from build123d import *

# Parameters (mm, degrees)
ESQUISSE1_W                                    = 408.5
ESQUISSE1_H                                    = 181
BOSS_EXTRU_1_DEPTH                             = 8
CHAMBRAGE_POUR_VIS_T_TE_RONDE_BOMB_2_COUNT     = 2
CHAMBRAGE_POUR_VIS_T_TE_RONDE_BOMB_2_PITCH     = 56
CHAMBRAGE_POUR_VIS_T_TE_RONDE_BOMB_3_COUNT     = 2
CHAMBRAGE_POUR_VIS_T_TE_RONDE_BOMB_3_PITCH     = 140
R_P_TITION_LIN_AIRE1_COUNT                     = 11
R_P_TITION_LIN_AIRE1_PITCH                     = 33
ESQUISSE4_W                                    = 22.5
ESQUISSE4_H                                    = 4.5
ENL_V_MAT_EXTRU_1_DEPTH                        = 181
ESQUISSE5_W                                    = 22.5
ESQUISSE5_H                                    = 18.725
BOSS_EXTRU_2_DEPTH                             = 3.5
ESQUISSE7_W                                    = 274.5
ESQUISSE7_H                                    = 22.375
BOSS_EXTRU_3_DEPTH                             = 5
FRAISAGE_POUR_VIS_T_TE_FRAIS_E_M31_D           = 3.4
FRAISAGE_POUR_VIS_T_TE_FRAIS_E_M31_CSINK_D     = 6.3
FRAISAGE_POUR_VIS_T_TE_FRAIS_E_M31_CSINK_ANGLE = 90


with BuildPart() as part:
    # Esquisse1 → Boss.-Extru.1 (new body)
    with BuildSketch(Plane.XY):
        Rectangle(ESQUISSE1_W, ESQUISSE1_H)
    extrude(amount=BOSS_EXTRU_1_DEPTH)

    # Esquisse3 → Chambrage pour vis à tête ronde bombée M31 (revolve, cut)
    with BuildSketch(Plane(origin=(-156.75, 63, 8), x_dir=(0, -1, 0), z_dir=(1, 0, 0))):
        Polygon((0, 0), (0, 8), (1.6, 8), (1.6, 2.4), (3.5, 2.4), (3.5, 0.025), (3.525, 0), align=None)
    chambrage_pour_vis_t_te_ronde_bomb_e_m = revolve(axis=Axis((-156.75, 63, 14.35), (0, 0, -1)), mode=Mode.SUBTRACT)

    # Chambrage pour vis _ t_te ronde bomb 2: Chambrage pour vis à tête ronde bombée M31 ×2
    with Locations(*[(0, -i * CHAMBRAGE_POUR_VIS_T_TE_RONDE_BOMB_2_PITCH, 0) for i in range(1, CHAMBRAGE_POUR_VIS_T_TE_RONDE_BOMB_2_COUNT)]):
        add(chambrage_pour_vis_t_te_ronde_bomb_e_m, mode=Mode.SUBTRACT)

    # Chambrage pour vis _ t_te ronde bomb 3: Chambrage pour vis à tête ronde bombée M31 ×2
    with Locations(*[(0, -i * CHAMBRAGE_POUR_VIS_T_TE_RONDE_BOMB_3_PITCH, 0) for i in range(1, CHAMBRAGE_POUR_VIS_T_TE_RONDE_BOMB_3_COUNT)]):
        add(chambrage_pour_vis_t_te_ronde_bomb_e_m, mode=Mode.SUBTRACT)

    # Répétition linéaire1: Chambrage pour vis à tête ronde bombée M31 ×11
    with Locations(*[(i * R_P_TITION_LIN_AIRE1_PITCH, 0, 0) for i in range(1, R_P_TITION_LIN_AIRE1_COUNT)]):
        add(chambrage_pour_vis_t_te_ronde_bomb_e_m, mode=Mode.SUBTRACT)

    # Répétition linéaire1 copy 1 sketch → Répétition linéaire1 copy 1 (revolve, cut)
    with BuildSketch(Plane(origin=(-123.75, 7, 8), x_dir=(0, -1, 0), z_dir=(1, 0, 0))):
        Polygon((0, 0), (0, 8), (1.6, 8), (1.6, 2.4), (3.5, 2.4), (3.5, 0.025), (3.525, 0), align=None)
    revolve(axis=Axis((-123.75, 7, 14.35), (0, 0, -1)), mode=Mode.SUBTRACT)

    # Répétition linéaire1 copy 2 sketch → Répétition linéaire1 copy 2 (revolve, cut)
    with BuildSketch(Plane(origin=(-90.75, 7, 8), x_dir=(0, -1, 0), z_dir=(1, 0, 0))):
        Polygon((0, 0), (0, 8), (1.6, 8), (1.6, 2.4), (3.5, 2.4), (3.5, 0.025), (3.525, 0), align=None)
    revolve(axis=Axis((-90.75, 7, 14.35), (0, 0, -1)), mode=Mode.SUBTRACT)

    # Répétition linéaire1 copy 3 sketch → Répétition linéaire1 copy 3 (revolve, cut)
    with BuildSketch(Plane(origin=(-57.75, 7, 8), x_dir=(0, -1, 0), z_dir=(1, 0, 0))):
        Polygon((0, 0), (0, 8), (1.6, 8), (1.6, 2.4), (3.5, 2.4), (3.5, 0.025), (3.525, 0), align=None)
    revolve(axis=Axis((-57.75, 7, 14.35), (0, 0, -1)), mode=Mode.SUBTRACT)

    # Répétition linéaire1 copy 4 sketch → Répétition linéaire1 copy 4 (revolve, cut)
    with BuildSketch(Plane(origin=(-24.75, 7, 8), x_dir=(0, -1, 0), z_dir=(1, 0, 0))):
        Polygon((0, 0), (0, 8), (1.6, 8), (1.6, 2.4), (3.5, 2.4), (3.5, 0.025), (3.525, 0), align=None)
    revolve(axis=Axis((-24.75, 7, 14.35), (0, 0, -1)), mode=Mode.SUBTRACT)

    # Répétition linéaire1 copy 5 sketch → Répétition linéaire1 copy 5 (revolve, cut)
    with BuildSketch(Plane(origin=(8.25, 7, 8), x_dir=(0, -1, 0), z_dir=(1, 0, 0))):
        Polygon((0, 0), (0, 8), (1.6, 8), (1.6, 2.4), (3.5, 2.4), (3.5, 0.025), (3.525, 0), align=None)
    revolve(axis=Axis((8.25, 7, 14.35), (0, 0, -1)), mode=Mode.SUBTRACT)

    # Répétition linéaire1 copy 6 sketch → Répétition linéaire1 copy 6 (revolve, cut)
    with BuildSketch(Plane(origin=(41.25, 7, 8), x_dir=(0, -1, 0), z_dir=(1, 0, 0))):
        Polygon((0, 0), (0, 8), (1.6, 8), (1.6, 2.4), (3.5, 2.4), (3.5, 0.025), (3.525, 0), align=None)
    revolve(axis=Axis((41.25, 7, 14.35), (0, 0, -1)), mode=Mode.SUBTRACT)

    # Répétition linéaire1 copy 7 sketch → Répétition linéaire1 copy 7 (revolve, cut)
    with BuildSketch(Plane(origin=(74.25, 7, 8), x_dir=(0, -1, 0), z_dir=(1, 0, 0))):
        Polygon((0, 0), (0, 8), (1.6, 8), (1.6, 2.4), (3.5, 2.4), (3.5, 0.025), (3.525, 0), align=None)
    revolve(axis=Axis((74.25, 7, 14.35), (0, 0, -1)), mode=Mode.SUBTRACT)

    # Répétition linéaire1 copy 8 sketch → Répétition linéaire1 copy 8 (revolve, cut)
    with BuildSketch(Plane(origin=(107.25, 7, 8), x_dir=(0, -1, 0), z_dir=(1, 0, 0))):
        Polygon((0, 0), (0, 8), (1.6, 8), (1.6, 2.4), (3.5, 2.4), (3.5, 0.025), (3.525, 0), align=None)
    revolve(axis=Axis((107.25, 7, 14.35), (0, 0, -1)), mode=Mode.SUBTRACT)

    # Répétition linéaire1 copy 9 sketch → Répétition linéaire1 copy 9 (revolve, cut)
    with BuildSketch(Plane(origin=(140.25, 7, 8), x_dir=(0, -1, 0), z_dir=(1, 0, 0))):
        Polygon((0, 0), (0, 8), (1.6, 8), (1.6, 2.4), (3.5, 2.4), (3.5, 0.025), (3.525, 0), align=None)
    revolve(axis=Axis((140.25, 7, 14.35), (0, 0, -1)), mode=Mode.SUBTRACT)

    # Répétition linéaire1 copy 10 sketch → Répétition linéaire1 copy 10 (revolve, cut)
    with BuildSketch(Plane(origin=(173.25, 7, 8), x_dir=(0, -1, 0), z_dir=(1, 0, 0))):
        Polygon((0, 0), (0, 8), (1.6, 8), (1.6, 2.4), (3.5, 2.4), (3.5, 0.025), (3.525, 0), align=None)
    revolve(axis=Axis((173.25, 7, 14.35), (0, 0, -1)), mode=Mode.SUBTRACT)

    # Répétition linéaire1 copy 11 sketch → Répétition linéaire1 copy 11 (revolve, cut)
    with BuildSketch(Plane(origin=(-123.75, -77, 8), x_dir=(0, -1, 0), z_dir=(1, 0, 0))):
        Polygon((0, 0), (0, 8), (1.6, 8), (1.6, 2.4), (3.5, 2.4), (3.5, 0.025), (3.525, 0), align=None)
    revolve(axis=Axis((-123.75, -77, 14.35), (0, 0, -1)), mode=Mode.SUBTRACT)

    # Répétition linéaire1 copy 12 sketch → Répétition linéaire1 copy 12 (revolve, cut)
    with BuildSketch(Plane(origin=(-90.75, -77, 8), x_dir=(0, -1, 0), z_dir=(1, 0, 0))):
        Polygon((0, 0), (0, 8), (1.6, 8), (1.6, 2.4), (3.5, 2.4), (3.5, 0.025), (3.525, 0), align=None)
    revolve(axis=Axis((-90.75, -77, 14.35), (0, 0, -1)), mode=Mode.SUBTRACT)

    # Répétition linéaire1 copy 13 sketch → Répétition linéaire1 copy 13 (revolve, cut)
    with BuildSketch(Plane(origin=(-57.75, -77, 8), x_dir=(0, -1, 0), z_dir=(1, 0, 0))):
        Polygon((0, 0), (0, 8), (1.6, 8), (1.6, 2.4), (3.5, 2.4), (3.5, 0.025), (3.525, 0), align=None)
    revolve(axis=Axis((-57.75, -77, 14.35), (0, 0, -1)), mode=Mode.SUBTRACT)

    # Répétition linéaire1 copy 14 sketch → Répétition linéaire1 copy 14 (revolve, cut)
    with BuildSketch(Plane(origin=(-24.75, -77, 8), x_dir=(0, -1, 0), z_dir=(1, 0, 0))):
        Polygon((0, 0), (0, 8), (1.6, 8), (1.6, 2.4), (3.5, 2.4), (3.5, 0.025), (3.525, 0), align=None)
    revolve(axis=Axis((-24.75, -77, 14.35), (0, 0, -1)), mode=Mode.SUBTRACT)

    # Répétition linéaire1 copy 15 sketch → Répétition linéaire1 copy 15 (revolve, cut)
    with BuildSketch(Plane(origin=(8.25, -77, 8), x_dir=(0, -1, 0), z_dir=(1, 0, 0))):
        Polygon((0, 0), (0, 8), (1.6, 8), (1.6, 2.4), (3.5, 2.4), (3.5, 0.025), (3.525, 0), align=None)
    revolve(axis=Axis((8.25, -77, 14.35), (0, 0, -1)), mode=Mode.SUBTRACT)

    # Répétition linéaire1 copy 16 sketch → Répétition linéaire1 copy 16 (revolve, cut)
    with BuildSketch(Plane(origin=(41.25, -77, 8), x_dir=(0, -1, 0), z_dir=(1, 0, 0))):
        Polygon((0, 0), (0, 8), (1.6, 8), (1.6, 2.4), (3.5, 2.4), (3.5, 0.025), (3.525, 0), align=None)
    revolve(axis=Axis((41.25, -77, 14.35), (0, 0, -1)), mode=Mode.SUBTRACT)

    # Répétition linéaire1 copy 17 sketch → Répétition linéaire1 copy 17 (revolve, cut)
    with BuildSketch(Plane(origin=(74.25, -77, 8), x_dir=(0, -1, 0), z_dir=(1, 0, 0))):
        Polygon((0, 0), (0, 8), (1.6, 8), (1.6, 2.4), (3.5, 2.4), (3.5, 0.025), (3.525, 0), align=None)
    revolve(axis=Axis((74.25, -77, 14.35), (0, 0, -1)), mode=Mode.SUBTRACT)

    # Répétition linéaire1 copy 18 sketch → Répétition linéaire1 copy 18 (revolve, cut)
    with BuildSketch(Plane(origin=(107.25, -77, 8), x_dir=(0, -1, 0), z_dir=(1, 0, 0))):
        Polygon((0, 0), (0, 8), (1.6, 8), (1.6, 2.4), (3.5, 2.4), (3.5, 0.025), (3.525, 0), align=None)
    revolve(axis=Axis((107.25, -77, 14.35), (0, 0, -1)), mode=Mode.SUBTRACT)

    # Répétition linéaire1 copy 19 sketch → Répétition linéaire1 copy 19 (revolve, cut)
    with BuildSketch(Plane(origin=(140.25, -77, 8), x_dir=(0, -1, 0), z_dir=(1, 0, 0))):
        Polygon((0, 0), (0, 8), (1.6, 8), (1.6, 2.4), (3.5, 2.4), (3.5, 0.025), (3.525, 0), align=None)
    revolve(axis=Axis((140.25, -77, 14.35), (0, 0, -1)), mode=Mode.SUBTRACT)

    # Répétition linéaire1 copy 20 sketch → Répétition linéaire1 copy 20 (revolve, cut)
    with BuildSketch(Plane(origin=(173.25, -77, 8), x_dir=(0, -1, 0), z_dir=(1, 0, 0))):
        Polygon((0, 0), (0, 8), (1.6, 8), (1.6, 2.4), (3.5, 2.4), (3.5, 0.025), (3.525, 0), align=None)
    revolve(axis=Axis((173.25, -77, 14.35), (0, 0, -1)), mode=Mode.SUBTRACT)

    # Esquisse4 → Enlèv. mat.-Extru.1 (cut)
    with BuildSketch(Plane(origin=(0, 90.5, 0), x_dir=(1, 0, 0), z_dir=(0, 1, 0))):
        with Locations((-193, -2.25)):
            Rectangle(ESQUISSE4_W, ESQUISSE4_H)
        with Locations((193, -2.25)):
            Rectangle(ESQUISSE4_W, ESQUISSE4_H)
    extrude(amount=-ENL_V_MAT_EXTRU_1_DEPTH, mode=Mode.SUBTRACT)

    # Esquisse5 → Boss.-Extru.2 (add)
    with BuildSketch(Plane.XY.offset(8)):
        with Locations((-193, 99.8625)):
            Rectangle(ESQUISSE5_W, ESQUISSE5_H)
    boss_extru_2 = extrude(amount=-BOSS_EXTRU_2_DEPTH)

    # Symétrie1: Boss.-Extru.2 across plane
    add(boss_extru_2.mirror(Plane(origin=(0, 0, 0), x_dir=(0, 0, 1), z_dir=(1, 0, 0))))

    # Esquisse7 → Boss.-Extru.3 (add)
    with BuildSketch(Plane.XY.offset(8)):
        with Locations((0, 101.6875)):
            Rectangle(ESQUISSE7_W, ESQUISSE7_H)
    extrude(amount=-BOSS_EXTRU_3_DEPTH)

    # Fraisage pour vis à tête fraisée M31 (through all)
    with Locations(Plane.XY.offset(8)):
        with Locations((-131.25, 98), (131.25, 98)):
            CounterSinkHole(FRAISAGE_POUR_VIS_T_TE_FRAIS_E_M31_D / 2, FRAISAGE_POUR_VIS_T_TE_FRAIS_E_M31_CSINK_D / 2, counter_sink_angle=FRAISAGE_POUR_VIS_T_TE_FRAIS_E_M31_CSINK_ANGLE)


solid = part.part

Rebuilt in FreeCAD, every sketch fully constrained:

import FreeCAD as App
import Part
import Sketcher
from FreeCAD import Vector
Q = App.Units.Quantity


def add_polygon(sketch, points):
    """Adds a closed chain of lines whose ends are joined by coincident constraints."""
    first, n = sketch.GeometryCount, len(points)
    for a, b in zip(points, points[1:] + points[:1]):
        sketch.addGeometry(Part.LineSegment(App.Vector(*a, 0), App.Vector(*b, 0)), False)
    for i in range(n):
        sketch.addConstraint(Sketcher.Constraint("Coincident", first + i, 2, first + (i + 1) % n, 1))

doc = App.newDocument("Part")
body = doc.addObject("PartDesign::Body", "Body")

sketch1 = body.newObject("Sketcher::SketchObject", "Sketch")
sketch1.AttachmentSupport = (doc.getObject("XY_Plane"), [""])
sketch1.MapMode = "FlatFace"
add_polygon(sketch1, [(-204, 90), (-204, -90), (204, -90), (204, 90)])
sketch1.addConstraint([
    Sketcher.Constraint("Vertical", 0),
    Sketcher.Constraint("Horizontal", 1),
    Sketcher.Constraint("Vertical", 2),
    Sketcher.Constraint("Horizontal", 3),
    Sketcher.Constraint("Symmetric", 0, 2, 2, 2, -1, 1),
    Sketcher.Constraint("DistanceY", 0, 2, 0, 1, 181.0),
    Sketcher.Constraint("DistanceX", 1, 1, 1, 2, 408.5),
])
pad1 = body.newObject("PartDesign::Pad", "Pad")
pad1.Profile = sketch1
pad1.Length = 8

sketch2 = body.newObject("Sketcher::SketchObject", "Sketch001")
sketch2.AttachmentSupport = (doc.getObject("YZ_Plane"), [""])
sketch2.MapMode = "FlatFace"
sketch2.AttachmentOffset = App.Placement(Vector(0, 0, -156.75), App.Rotation())
add_polygon(sketch2, [(63, 0), (63, 8), (59.475, 8), (59.5, 7.975), (59.5, 5.6), (61.4, 5.6), (61.4, 0)])
sketch2.addGeometry(Part.LineSegment(Vector(63, 8, 0), Vector(63, 0, 0)), True)
sketch2.addConstraint([
    Sketcher.Constraint("Vertical", 0),
    Sketcher.Constraint("Horizontal", 1),
    Sketcher.Constraint("Vertical", 3),
    Sketcher.Constraint("Horizontal", 4),
    Sketcher.Constraint("Vertical", 5),
    Sketcher.Constraint("Horizontal", 6),
    Sketcher.Constraint("Vertical", 7),
    Sketcher.Constraint("Coincident", 7, 1, 0, 2),
    Sketcher.Constraint("PointOnObject", 5, 2, -1),
    Sketcher.Constraint("PointOnObject", 7, 2, -1),
    Sketcher.Constraint("DistanceY", 0, 1, 0, 2, 8.0),
    Sketcher.Constraint("Angle", 2, Q("-45 deg")),
    Sketcher.Constraint("DistanceX", 4, 1, 4, 2, 1.9),
    Sketcher.Constraint("DistanceX", 6, 1, 6, 2, 1.6),
    Sketcher.Constraint("DistanceY", 5, 2, 5, 1, 5.6),
    Sketcher.Constraint("DistanceX", -1, 1, 0, 2, 63.0),
    Sketcher.Constraint("DistanceX", 1, 2, 1, 1, 3.525),
])
groove = body.newObject("PartDesign::Groove", "Groove")
groove.Profile = sketch2
groove.ReferenceAxis = (sketch2, ["Axis0"])
groove.Angle = 360
doc.recompute()

linearpattern = body.newObject("PartDesign::LinearPattern", "LinearPattern")
linearpattern.Originals = [groove]
linearpattern.Direction = (doc.getObject("Y_Axis"), [""])
linearpattern.Mode = "offset"
linearpattern.Offset = 56
linearpattern.Occurrences = 2
linearpattern.Reversed = True
body.Tip = linearpattern
doc.recompute()

linearpattern2 = body.newObject("PartDesign::LinearPattern", "LinearPattern001")
linearpattern2.Originals = [groove]
linearpattern2.Direction = (doc.getObject("Y_Axis"), [""])
linearpattern2.Mode = "offset"
linearpattern2.Offset = 140
linearpattern2.Occurrences = 2
linearpattern2.Reversed = True
body.Tip = linearpattern2
doc.recompute()

linearpattern3 = body.newObject("PartDesign::LinearPattern", "LinearPattern002")
linearpattern3.Originals = [groove]
linearpattern3.Direction = (doc.getObject("X_Axis"), [""])
linearpattern3.Mode = "offset"
linearpattern3.Offset = 33
linearpattern3.Occurrences = 11
body.Tip = linearpattern3

sketch3 = body.newObject("Sketcher::SketchObject", "Sketch002")
sketch3.AttachmentSupport = (doc.getObject("YZ_Plane"), [""])
sketch3.MapMode = "FlatFace"
sketch3.AttachmentOffset = App.Placement(Vector(0, 0, -123.75), App.Rotation())
add_polygon(sketch3, [(7, 0), (7, 8), (3.475, 8), (3.5, 7.975), (3.5, 5.6), (5.4, 5.6), (5.4, 0)])
sketch3.addGeometry(Part.LineSegment(Vector(7, 8, 0), Vector(7, 0, 0)), True)
sketch3.addConstraint([
    Sketcher.Constraint("Vertical", 0),
    Sketcher.Constraint("Horizontal", 1),
    Sketcher.Constraint("Vertical", 3),
    Sketcher.Constraint("Horizontal", 4),
    Sketcher.Constraint("Vertical", 5),
    Sketcher.Constraint("Horizontal", 6),
    Sketcher.Constraint("Vertical", 7),
    Sketcher.Constraint("Coincident", 7, 1, 0, 2),
    Sketcher.Constraint("PointOnObject", 5, 2, -1),
    Sketcher.Constraint("PointOnObject", 7, 2, -1),
    Sketcher.Constraint("DistanceY", 0, 1, 0, 2, 8.0),
    Sketcher.Constraint("Angle", 2, Q("-45 deg")),
    Sketcher.Constraint("DistanceX", 4, 1, 4, 2, 1.9),
    Sketcher.Constraint("DistanceX", 6, 1, 6, 2, 1.6),
    Sketcher.Constraint("DistanceY", 5, 2, 5, 1, 5.6),
    Sketcher.Constraint("DistanceX", -1, 1, 0, 2, 7.0),
    Sketcher.Constraint("DistanceX", 1, 2, 1, 1, 3.525),
])
groove2 = body.newObject("PartDesign::Groove", "Groove001")
groove2.Profile = sketch3
groove2.ReferenceAxis = (sketch3, ["Axis0"])
groove2.Angle = 360

sketch4 = body.newObject("Sketcher::SketchObject", "Sketch003")
sketch4.AttachmentSupport = (doc.getObject("YZ_Plane"), [""])
sketch4.MapMode = "FlatFace"
sketch4.AttachmentOffset = App.Placement(Vector(0, 0, -90.75), App.Rotation())
add_polygon(sketch4, [(7, 0), (7, 8), (3.475, 8), (3.5, 7.975), (3.5, 5.6), (5.4, 5.6), (5.4, 0)])
sketch4.addGeometry(Part.LineSegment(Vector(7, 8, 0), Vector(7, 0, 0)), True)
sketch4.addConstraint([
    Sketcher.Constraint("Vertical", 0),
    Sketcher.Constraint("Horizontal", 1),
    Sketcher.Constraint("Vertical", 3),
    Sketcher.Constraint("Horizontal", 4),
    Sketcher.Constraint("Vertical", 5),
    Sketcher.Constraint("Horizontal", 6),
    Sketcher.Constraint("Vertical", 7),
    Sketcher.Constraint("Coincident", 7, 1, 0, 2),
    Sketcher.Constraint("PointOnObject", 5, 2, -1),
    Sketcher.Constraint("PointOnObject", 7, 2, -1),
    Sketcher.Constraint("DistanceY", 0, 1, 0, 2, 8.0),
    Sketcher.Constraint("Angle", 2, Q("-45 deg")),
    Sketcher.Constraint("DistanceX", 4, 1, 4, 2, 1.9),
    Sketcher.Constraint("DistanceX", 6, 1, 6, 2, 1.6),
    Sketcher.Constraint("DistanceY", 5, 2, 5, 1, 5.6),
    Sketcher.Constraint("DistanceX", -1, 1, 0, 2, 7.0),
    Sketcher.Constraint("DistanceX", 1, 2, 1, 1, 3.525),
])
groove3 = body.newObject("PartDesign::Groove", "Groove002")
groove3.Profile = sketch4
groove3.ReferenceAxis = (sketch4, ["Axis0"])
groove3.Angle = 360

sketch5 = body.newObject("Sketcher::SketchObject", "Sketch004")
sketch5.AttachmentSupport = (doc.getObject("YZ_Plane"), [""])
sketch5.MapMode = "FlatFace"
sketch5.AttachmentOffset = App.Placement(Vector(0, 0, -57.75), App.Rotation())
add_polygon(sketch5, [(7, 0), (7, 8), (3.475, 8), (3.5, 7.975), (3.5, 5.6), (5.4, 5.6), (5.4, 0)])
sketch5.addGeometry(Part.LineSegment(Vector(7, 8, 0), Vector(7, 0, 0)), True)
sketch5.addConstraint([
    Sketcher.Constraint("Vertical", 0),
    Sketcher.Constraint("Horizontal", 1),
    Sketcher.Constraint("Vertical", 3),
    Sketcher.Constraint("Horizontal", 4),
    Sketcher.Constraint("Vertical", 5),
    Sketcher.Constraint("Horizontal", 6),
    Sketcher.Constraint("Vertical", 7),
    Sketcher.Constraint("Coincident", 7, 1, 0, 2),
    Sketcher.Constraint("PointOnObject", 5, 2, -1),
    Sketcher.Constraint("PointOnObject", 7, 2, -1),
    Sketcher.Constraint("DistanceY", 0, 1, 0, 2, 8.0),
    Sketcher.Constraint("Angle", 2, Q("-45 deg")),
    Sketcher.Constraint("DistanceX", 4, 1, 4, 2, 1.9),
    Sketcher.Constraint("DistanceX", 6, 1, 6, 2, 1.6),
    Sketcher.Constraint("DistanceY", 5, 2, 5, 1, 5.6),
    Sketcher.Constraint("DistanceX", -1, 1, 0, 2, 7.0),
    Sketcher.Constraint("DistanceX", 1, 2, 1, 1, 3.525),
])
groove4 = body.newObject("PartDesign::Groove", "Groove003")
groove4.Profile = sketch5
groove4.ReferenceAxis = (sketch5, ["Axis0"])
groove4.Angle = 360

sketch6 = body.newObject("Sketcher::SketchObject", "Sketch005")
sketch6.AttachmentSupport = (doc.getObject("YZ_Plane"), [""])
sketch6.MapMode = "FlatFace"
sketch6.AttachmentOffset = App.Placement(Vector(0, 0, -24.75), App.Rotation())
add_polygon(sketch6, [(7, 0), (7, 8), (3.475, 8), (3.5, 7.975), (3.5, 5.6), (5.4, 5.6), (5.4, 0)])
sketch6.addGeometry(Part.LineSegment(Vector(7, 8, 0), Vector(7, 0, 0)), True)
sketch6.addConstraint([
    Sketcher.Constraint("Vertical", 0),
    Sketcher.Constraint("Horizontal", 1),
    Sketcher.Constraint("Vertical", 3),
    Sketcher.Constraint("Horizontal", 4),
    Sketcher.Constraint("Vertical", 5),
    Sketcher.Constraint("Horizontal", 6),
    Sketcher.Constraint("Vertical", 7),
    Sketcher.Constraint("Coincident", 7, 1, 0, 2),
    Sketcher.Constraint("PointOnObject", 5, 2, -1),
    Sketcher.Constraint("PointOnObject", 7, 2, -1),
    Sketcher.Constraint("DistanceY", 0, 1, 0, 2, 8.0),
    Sketcher.Constraint("Angle", 2, Q("-45 deg")),
    Sketcher.Constraint("DistanceX", 4, 1, 4, 2, 1.9),
    Sketcher.Constraint("DistanceX", 6, 1, 6, 2, 1.6),
    Sketcher.Constraint("DistanceY", 5, 2, 5, 1, 5.6),
    Sketcher.Constraint("DistanceX", -1, 1, 0, 2, 7.0),
    Sketcher.Constraint("DistanceX", 1, 2, 1, 1, 3.525),
])
groove5 = body.newObject("PartDesign::Groove", "Groove004")
groove5.Profile = sketch6
groove5.ReferenceAxis = (sketch6, ["Axis0"])
groove5.Angle = 360

sketch7 = body.newObject("Sketcher::SketchObject", "Sketch006")
sketch7.AttachmentSupport = (doc.getObject("YZ_Plane"), [""])
sketch7.MapMode = "FlatFace"
sketch7.AttachmentOffset = App.Placement(Vector(0, 0, 8.25), App.Rotation())
add_polygon(sketch7, [(7, 0), (7, 8), (3.475, 8), (3.5, 7.975), (3.5, 5.6), (5.4, 5.6), (5.4, 0)])
sketch7.addGeometry(Part.LineSegment(Vector(7, 8, 0), Vector(7, 0, 0)), True)
sketch7.addConstraint([
    Sketcher.Constraint("Vertical", 0),
    Sketcher.Constraint("Horizontal", 1),
    Sketcher.Constraint("Vertical", 3),
    Sketcher.Constraint("Horizontal", 4),
    Sketcher.Constraint("Vertical", 5),
    Sketcher.Constraint("Horizontal", 6),
    Sketcher.Constraint("Vertical", 7),
    Sketcher.Constraint("Coincident", 7, 1, 0, 2),
    Sketcher.Constraint("PointOnObject", 5, 2, -1),
    Sketcher.Constraint("PointOnObject", 7, 2, -1),
    Sketcher.Constraint("DistanceY", 0, 1, 0, 2, 8.0),
    Sketcher.Constraint("Angle", 2, Q("-45 deg")),
    Sketcher.Constraint("DistanceX", 4, 1, 4, 2, 1.9),
    Sketcher.Constraint("DistanceX", 6, 1, 6, 2, 1.6),
    Sketcher.Constraint("DistanceY", 5, 2, 5, 1, 5.6),
    Sketcher.Constraint("DistanceX", -1, 1, 0, 2, 7.0),
    Sketcher.Constraint("DistanceX", 1, 2, 1, 1, 3.525),
])
groove6 = body.newObject("PartDesign::Groove", "Groove005")
groove6.Profile = sketch7
groove6.ReferenceAxis = (sketch7, ["Axis0"])
groove6.Angle = 360

sketch8 = body.newObject("Sketcher::SketchObject", "Sketch007")
sketch8.AttachmentSupport = (doc.getObject("YZ_Plane"), [""])
sketch8.MapMode = "FlatFace"
sketch8.AttachmentOffset = App.Placement(Vector(0, 0, 41.25), App.Rotation())
add_polygon(sketch8, [(7, 0), (7, 8), (3.475, 8), (3.5, 7.975), (3.5, 5.6), (5.4, 5.6), (5.4, 0)])
sketch8.addGeometry(Part.LineSegment(Vector(7, 8, 0), Vector(7, 0, 0)), True)
sketch8.addConstraint([
    Sketcher.Constraint("Vertical", 0),
    Sketcher.Constraint("Horizontal", 1),
    Sketcher.Constraint("Vertical", 3),
    Sketcher.Constraint("Horizontal", 4),
    Sketcher.Constraint("Vertical", 5),
    Sketcher.Constraint("Horizontal", 6),
    Sketcher.Constraint("Vertical", 7),
    Sketcher.Constraint("Coincident", 7, 1, 0, 2),
    Sketcher.Constraint("PointOnObject", 5, 2, -1),
    Sketcher.Constraint("PointOnObject", 7, 2, -1),
    Sketcher.Constraint("DistanceY", 0, 1, 0, 2, 8.0),
    Sketcher.Constraint("Angle", 2, Q("-45 deg")),
    Sketcher.Constraint("DistanceX", 4, 1, 4, 2, 1.9),
    Sketcher.Constraint("DistanceX", 6, 1, 6, 2, 1.6),
    Sketcher.Constraint("DistanceY", 5, 2, 5, 1, 5.6),
    Sketcher.Constraint("DistanceX", -1, 1, 0, 2, 7.0),
    Sketcher.Constraint("DistanceX", 1, 2, 1, 1, 3.525),
])
groove7 = body.newObject("PartDesign::Groove", "Groove006")
groove7.Profile = sketch8
groove7.ReferenceAxis = (sketch8, ["Axis0"])
groove7.Angle = 360

sketch9 = body.newObject("Sketcher::SketchObject", "Sketch008")
sketch9.AttachmentSupport = (doc.getObject("YZ_Plane"), [""])
sketch9.MapMode = "FlatFace"
sketch9.AttachmentOffset = App.Placement(Vector(0, 0, 74.25), App.Rotation())
add_polygon(sketch9, [(7, 0), (7, 8), (3.475, 8), (3.5, 7.975), (3.5, 5.6), (5.4, 5.6), (5.4, 0)])
sketch9.addGeometry(Part.LineSegment(Vector(7, 8, 0), Vector(7, 0, 0)), True)
sketch9.addConstraint([
    Sketcher.Constraint("Vertical", 0),
    Sketcher.Constraint("Horizontal", 1),
    Sketcher.Constraint("Vertical", 3),
    Sketcher.Constraint("Horizontal", 4),
    Sketcher.Constraint("Vertical", 5),
    Sketcher.Constraint("Horizontal", 6),
    Sketcher.Constraint("Vertical", 7),
    Sketcher.Constraint("Coincident", 7, 1, 0, 2),
    Sketcher.Constraint("PointOnObject", 5, 2, -1),
    Sketcher.Constraint("PointOnObject", 7, 2, -1),
    Sketcher.Constraint("DistanceY", 0, 1, 0, 2, 8.0),
    Sketcher.Constraint("Angle", 2, Q("-45 deg")),
    Sketcher.Constraint("DistanceX", 4, 1, 4, 2, 1.9),
    Sketcher.Constraint("DistanceX", 6, 1, 6, 2, 1.6),
    Sketcher.Constraint("DistanceY", 5, 2, 5, 1, 5.6),
    Sketcher.Constraint("DistanceX", -1, 1, 0, 2, 7.0),
    Sketcher.Constraint("DistanceX", 1, 2, 1, 1, 3.525),
])
groove8 = body.newObject("PartDesign::Groove", "Groove007")
groove8.Profile = sketch9
groove8.ReferenceAxis = (sketch9, ["Axis0"])
groove8.Angle = 360

sketch10 = body.newObject("Sketcher::SketchObject", "Sketch009")
sketch10.AttachmentSupport = (doc.getObject("YZ_Plane"), [""])
sketch10.MapMode = "FlatFace"
sketch10.AttachmentOffset = App.Placement(Vector(0, 0, 107.25), App.Rotation())
add_polygon(sketch10, [(7, 0), (7, 8), (3.475, 8), (3.5, 7.975), (3.5, 5.6), (5.4, 5.6), (5.4, 0)])
sketch10.addGeometry(Part.LineSegment(Vector(7, 8, 0), Vector(7, 0, 0)), True)
sketch10.addConstraint([
    Sketcher.Constraint("Vertical", 0),
    Sketcher.Constraint("Horizontal", 1),
    Sketcher.Constraint("Vertical", 3),
    Sketcher.Constraint("Horizontal", 4),
    Sketcher.Constraint("Vertical", 5),
    Sketcher.Constraint("Horizontal", 6),
    Sketcher.Constraint("Vertical", 7),
    Sketcher.Constraint("Coincident", 7, 1, 0, 2),
    Sketcher.Constraint("PointOnObject", 5, 2, -1),
    Sketcher.Constraint("PointOnObject", 7, 2, -1),
    Sketcher.Constraint("DistanceY", 0, 1, 0, 2, 8.0),
    Sketcher.Constraint("Angle", 2, Q("-45 deg")),
    Sketcher.Constraint("DistanceX", 4, 1, 4, 2, 1.9),
    Sketcher.Constraint("DistanceX", 6, 1, 6, 2, 1.6),
    Sketcher.Constraint("DistanceY", 5, 2, 5, 1, 5.6),
    Sketcher.Constraint("DistanceX", -1, 1, 0, 2, 7.0),
    Sketcher.Constraint("DistanceX", 1, 2, 1, 1, 3.525),
])
groove9 = body.newObject("PartDesign::Groove", "Groove008")
groove9.Profile = sketch10
groove9.ReferenceAxis = (sketch10, ["Axis0"])
groove9.Angle = 360

sketch11 = body.newObject("Sketcher::SketchObject", "Sketch010")
sketch11.AttachmentSupport = (doc.getObject("YZ_Plane"), [""])
sketch11.MapMode = "FlatFace"
sketch11.AttachmentOffset = App.Placement(Vector(0, 0, 140.25), App.Rotation())
add_polygon(sketch11, [(7, 0), (7, 8), (3.475, 8), (3.5, 7.975), (3.5, 5.6), (5.4, 5.6), (5.4, 0)])
sketch11.addGeometry(Part.LineSegment(Vector(7, 8, 0), Vector(7, 0, 0)), True)
sketch11.addConstraint([
    Sketcher.Constraint("Vertical", 0),
    Sketcher.Constraint("Horizontal", 1),
    Sketcher.Constraint("Vertical", 3),
    Sketcher.Constraint("Horizontal", 4),
    Sketcher.Constraint("Vertical", 5),
    Sketcher.Constraint("Horizontal", 6),
    Sketcher.Constraint("Vertical", 7),
    Sketcher.Constraint("Coincident", 7, 1, 0, 2),
    Sketcher.Constraint("PointOnObject", 5, 2, -1),
    Sketcher.Constraint("PointOnObject", 7, 2, -1),
    Sketcher.Constraint("DistanceY", 0, 1, 0, 2, 8.0),
    Sketcher.Constraint("Angle", 2, Q("-45 deg")),
    Sketcher.Constraint("DistanceX", 4, 1, 4, 2, 1.9),
    Sketcher.Constraint("DistanceX", 6, 1, 6, 2, 1.6),
    Sketcher.Constraint("DistanceY", 5, 2, 5, 1, 5.6),
    Sketcher.Constraint("DistanceX", -1, 1, 0, 2, 7.0),
    Sketcher.Constraint("DistanceX", 1, 2, 1, 1, 3.525),
])
groove10 = body.newObject("PartDesign::Groove", "Groove009")
groove10.Profile = sketch11
groove10.ReferenceAxis = (sketch11, ["Axis0"])
groove10.Angle = 360

sketch12 = body.newObject("Sketcher::SketchObject", "Sketch011")
sketch12.AttachmentSupport = (doc.getObject("YZ_Plane"), [""])
sketch12.MapMode = "FlatFace"
sketch12.AttachmentOffset = App.Placement(Vector(0, 0, 173.25), App.Rotation())
add_polygon(sketch12, [(7, 0), (7, 8), (3.475, 8), (3.5, 7.975), (3.5, 5.6), (5.4, 5.6), (5.4, 0)])
sketch12.addGeometry(Part.LineSegment(Vector(7, 8, 0), Vector(7, 0, 0)), True)
sketch12.addConstraint([
    Sketcher.Constraint("Vertical", 0),
    Sketcher.Constraint("Horizontal", 1),
    Sketcher.Constraint("Vertical", 3),
    Sketcher.Constraint("Horizontal", 4),
    Sketcher.Constraint("Vertical", 5),
    Sketcher.Constraint("Horizontal", 6),
    Sketcher.Constraint("Vertical", 7),
    Sketcher.Constraint("Coincident", 7, 1, 0, 2),
    Sketcher.Constraint("PointOnObject", 5, 2, -1),
    Sketcher.Constraint("PointOnObject", 7, 2, -1),
    Sketcher.Constraint("DistanceY", 0, 1, 0, 2, 8.0),
    Sketcher.Constraint("Angle", 2, Q("-45 deg")),
    Sketcher.Constraint("DistanceX", 4, 1, 4, 2, 1.9),
    Sketcher.Constraint("DistanceX", 6, 1, 6, 2, 1.6),
    Sketcher.Constraint("DistanceY", 5, 2, 5, 1, 5.6),
    Sketcher.Constraint("DistanceX", -1, 1, 0, 2, 7.0),
    Sketcher.Constraint("DistanceX", 1, 2, 1, 1, 3.525),
])
groove11 = body.newObject("PartDesign::Groove", "Groove010")
groove11.Profile = sketch12
groove11.ReferenceAxis = (sketch12, ["Axis0"])
groove11.Angle = 360

sketch13 = body.newObject("Sketcher::SketchObject", "Sketch012")
sketch13.AttachmentSupport = (doc.getObject("YZ_Plane"), [""])
sketch13.MapMode = "FlatFace"
sketch13.AttachmentOffset = App.Placement(Vector(0, 0, -123.75), App.Rotation())
add_polygon(sketch13, [(-77, 0), (-77, 8), (-80.525, 8), (-80.5, 7.975), (-80.5, 5.6), (-78.6, 5.6), (-78.6, 0)])
sketch13.addGeometry(Part.LineSegment(Vector(-77, 8, 0), Vector(-77, 0, 0)), True)
sketch13.addConstraint([
    Sketcher.Constraint("Vertical", 0),
    Sketcher.Constraint("Horizontal", 1),
    Sketcher.Constraint("Vertical", 3),
    Sketcher.Constraint("Horizontal", 4),
    Sketcher.Constraint("Vertical", 5),
    Sketcher.Constraint("Horizontal", 6),
    Sketcher.Constraint("Vertical", 7),
    Sketcher.Constraint("Coincident", 7, 1, 0, 2),
    Sketcher.Constraint("PointOnObject", 5, 2, -1),
    Sketcher.Constraint("PointOnObject", 7, 2, -1),
    Sketcher.Constraint("DistanceY", 0, 1, 0, 2, 8.0),
    Sketcher.Constraint("Angle", 2, Q("-45 deg")),
    Sketcher.Constraint("DistanceX", 4, 1, 4, 2, 1.9),
    Sketcher.Constraint("DistanceX", 6, 1, 6, 2, 1.6),
    Sketcher.Constraint("DistanceY", 5, 2, 5, 1, 5.6),
    Sketcher.Constraint("DistanceX", 0, 2, -1, 1, 77.0),
    Sketcher.Constraint("DistanceX", 1, 2, 1, 1, 3.525),
])
groove12 = body.newObject("PartDesign::Groove", "Groove011")
groove12.Profile = sketch13
groove12.ReferenceAxis = (sketch13, ["Axis0"])
groove12.Angle = 360

sketch14 = body.newObject("Sketcher::SketchObject", "Sketch013")
sketch14.AttachmentSupport = (doc.getObject("YZ_Plane"), [""])
sketch14.MapMode = "FlatFace"
sketch14.AttachmentOffset = App.Placement(Vector(0, 0, -90.75), App.Rotation())
add_polygon(sketch14, [(-77, 0), (-77, 8), (-80.525, 8), (-80.5, 7.975), (-80.5, 5.6), (-78.6, 5.6), (-78.6, 0)])
sketch14.addGeometry(Part.LineSegment(Vector(-77, 8, 0), Vector(-77, 0, 0)), True)
sketch14.addConstraint([
    Sketcher.Constraint("Vertical", 0),
    Sketcher.Constraint("Horizontal", 1),
    Sketcher.Constraint("Vertical", 3),
    Sketcher.Constraint("Horizontal", 4),
    Sketcher.Constraint("Vertical", 5),
    Sketcher.Constraint("Horizontal", 6),
    Sketcher.Constraint("Vertical", 7),
    Sketcher.Constraint("Coincident", 7, 1, 0, 2),
    Sketcher.Constraint("PointOnObject", 5, 2, -1),
    Sketcher.Constraint("PointOnObject", 7, 2, -1),
    Sketcher.Constraint("DistanceY", 0, 1, 0, 2, 8.0),
    Sketcher.Constraint("Angle", 2, Q("-45 deg")),
    Sketcher.Constraint("DistanceX", 4, 1, 4, 2, 1.9),
    Sketcher.Constraint("DistanceX", 6, 1, 6, 2, 1.6),
    Sketcher.Constraint("DistanceY", 5, 2, 5, 1, 5.6),
    Sketcher.Constraint("DistanceX", 0, 2, -1, 1, 77.0),
    Sketcher.Constraint("DistanceX", 1, 2, 1, 1, 3.525),
])
groove13 = body.newObject("PartDesign::Groove", "Groove012")
groove13.Profile = sketch14
groove13.ReferenceAxis = (sketch14, ["Axis0"])
groove13.Angle = 360

sketch15 = body.newObject("Sketcher::SketchObject", "Sketch014")
sketch15.AttachmentSupport = (doc.getObject("YZ_Plane"), [""])
sketch15.MapMode = "FlatFace"
sketch15.AttachmentOffset = App.Placement(Vector(0, 0, -57.75), App.Rotation())
add_polygon(sketch15, [(-77, 0), (-77, 8), (-80.525, 8), (-80.5, 7.975), (-80.5, 5.6), (-78.6, 5.6), (-78.6, 0)])
sketch15.addGeometry(Part.LineSegment(Vector(-77, 8, 0), Vector(-77, 0, 0)), True)
sketch15.addConstraint([
    Sketcher.Constraint("Vertical", 0),
    Sketcher.Constraint("Horizontal", 1),
    Sketcher.Constraint("Vertical", 3),
    Sketcher.Constraint("Horizontal", 4),
    Sketcher.Constraint("Vertical", 5),
    Sketcher.Constraint("Horizontal", 6),
    Sketcher.Constraint("Vertical", 7),
    Sketcher.Constraint("Coincident", 7, 1, 0, 2),
    Sketcher.Constraint("PointOnObject", 5, 2, -1),
    Sketcher.Constraint("PointOnObject", 7, 2, -1),
    Sketcher.Constraint("DistanceY", 0, 1, 0, 2, 8.0),
    Sketcher.Constraint("Angle", 2, Q("-45 deg")),
    Sketcher.Constraint("DistanceX", 4, 1, 4, 2, 1.9),
    Sketcher.Constraint("DistanceX", 6, 1, 6, 2, 1.6),
    Sketcher.Constraint("DistanceY", 5, 2, 5, 1, 5.6),
    Sketcher.Constraint("DistanceX", 0, 2, -1, 1, 77.0),
    Sketcher.Constraint("DistanceX", 1, 2, 1, 1, 3.525),
])
groove14 = body.newObject("PartDesign::Groove", "Groove013")
groove14.Profile = sketch15
groove14.ReferenceAxis = (sketch15, ["Axis0"])
groove14.Angle = 360

sketch16 = body.newObject("Sketcher::SketchObject", "Sketch015")
sketch16.AttachmentSupport = (doc.getObject("YZ_Plane"), [""])
sketch16.MapMode = "FlatFace"
sketch16.AttachmentOffset = App.Placement(Vector(0, 0, -24.75), App.Rotation())
add_polygon(sketch16, [(-77, 0), (-77, 8), (-80.525, 8), (-80.5, 7.975), (-80.5, 5.6), (-78.6, 5.6), (-78.6, 0)])
sketch16.addGeometry(Part.LineSegment(Vector(-77, 8, 0), Vector(-77, 0, 0)), True)
sketch16.addConstraint([
    Sketcher.Constraint("Vertical", 0),
    Sketcher.Constraint("Horizontal", 1),
    Sketcher.Constraint("Vertical", 3),
    Sketcher.Constraint("Horizontal", 4),
    Sketcher.Constraint("Vertical", 5),
    Sketcher.Constraint("Horizontal", 6),
    Sketcher.Constraint("Vertical", 7),
    Sketcher.Constraint("Coincident", 7, 1, 0, 2),
    Sketcher.Constraint("PointOnObject", 5, 2, -1),
    Sketcher.Constraint("PointOnObject", 7, 2, -1),
    Sketcher.Constraint("DistanceY", 0, 1, 0, 2, 8.0),
    Sketcher.Constraint("Angle", 2, Q("-45 deg")),
    Sketcher.Constraint("DistanceX", 4, 1, 4, 2, 1.9),
    Sketcher.Constraint("DistanceX", 6, 1, 6, 2, 1.6),
    Sketcher.Constraint("DistanceY", 5, 2, 5, 1, 5.6),
    Sketcher.Constraint("DistanceX", 0, 2, -1, 1, 77.0),
    Sketcher.Constraint("DistanceX", 1, 2, 1, 1, 3.525),
])
groove15 = body.newObject("PartDesign::Groove", "Groove014")
groove15.Profile = sketch16
groove15.ReferenceAxis = (sketch16, ["Axis0"])
groove15.Angle = 360

sketch17 = body.newObject("Sketcher::SketchObject", "Sketch016")
sketch17.AttachmentSupport = (doc.getObject("YZ_Plane"), [""])
sketch17.MapMode = "FlatFace"
sketch17.AttachmentOffset = App.Placement(Vector(0, 0, 8.25), App.Rotation())
add_polygon(sketch17, [(-77, 0), (-77, 8), (-80.525, 8), (-80.5, 7.975), (-80.5, 5.6), (-78.6, 5.6), (-78.6, 0)])
sketch17.addGeometry(Part.LineSegment(Vector(-77, 8, 0), Vector(-77, 0, 0)), True)
sketch17.addConstraint([
    Sketcher.Constraint("Vertical", 0),
    Sketcher.Constraint("Horizontal", 1),
    Sketcher.Constraint("Vertical", 3),
    Sketcher.Constraint("Horizontal", 4),
    Sketcher.Constraint("Vertical", 5),
    Sketcher.Constraint("Horizontal", 6),
    Sketcher.Constraint("Vertical", 7),
    Sketcher.Constraint("Coincident", 7, 1, 0, 2),
    Sketcher.Constraint("PointOnObject", 5, 2, -1),
    Sketcher.Constraint("PointOnObject", 7, 2, -1),
    Sketcher.Constraint("DistanceY", 0, 1, 0, 2, 8.0),
    Sketcher.Constraint("Angle", 2, Q("-45 deg")),
    Sketcher.Constraint("DistanceX", 4, 1, 4, 2, 1.9),
    Sketcher.Constraint("DistanceX", 6, 1, 6, 2, 1.6),
    Sketcher.Constraint("DistanceY", 5, 2, 5, 1, 5.6),
    Sketcher.Constraint("DistanceX", 0, 2, -1, 1, 77.0),
    Sketcher.Constraint("DistanceX", 1, 2, 1, 1, 3.525),
])
groove16 = body.newObject("PartDesign::Groove", "Groove015")
groove16.Profile = sketch17
groove16.ReferenceAxis = (sketch17, ["Axis0"])
groove16.Angle = 360

sketch18 = body.newObject("Sketcher::SketchObject", "Sketch017")
sketch18.AttachmentSupport = (doc.getObject("YZ_Plane"), [""])
sketch18.MapMode = "FlatFace"
sketch18.AttachmentOffset = App.Placement(Vector(0, 0, 41.25), App.Rotation())
add_polygon(sketch18, [(-77, 0), (-77, 8), (-80.525, 8), (-80.5, 7.975), (-80.5, 5.6), (-78.6, 5.6), (-78.6, 0)])
sketch18.addGeometry(Part.LineSegment(Vector(-77, 8, 0), Vector(-77, 0, 0)), True)
sketch18.addConstraint([
    Sketcher.Constraint("Vertical", 0),
    Sketcher.Constraint("Horizontal", 1),
    Sketcher.Constraint("Vertical", 3),
    Sketcher.Constraint("Horizontal", 4),
    Sketcher.Constraint("Vertical", 5),
    Sketcher.Constraint("Horizontal", 6),
    Sketcher.Constraint("Vertical", 7),
    Sketcher.Constraint("Coincident", 7, 1, 0, 2),
    Sketcher.Constraint("PointOnObject", 5, 2, -1),
    Sketcher.Constraint("PointOnObject", 7, 2, -1),
    Sketcher.Constraint("DistanceY", 0, 1, 0, 2, 8.0),
    Sketcher.Constraint("Angle", 2, Q("-45 deg")),
    Sketcher.Constraint("DistanceX", 4, 1, 4, 2, 1.9),
    Sketcher.Constraint("DistanceX", 6, 1, 6, 2, 1.6),
    Sketcher.Constraint("DistanceY", 5, 2, 5, 1, 5.6),
    Sketcher.Constraint("DistanceX", 0, 2, -1, 1, 77.0),
    Sketcher.Constraint("DistanceX", 1, 2, 1, 1, 3.525),
])
groove17 = body.newObject("PartDesign::Groove", "Groove016")
groove17.Profile = sketch18
groove17.ReferenceAxis = (sketch18, ["Axis0"])
groove17.Angle = 360

sketch19 = body.newObject("Sketcher::SketchObject", "Sketch018")
sketch19.AttachmentSupport = (doc.getObject("YZ_Plane"), [""])
sketch19.MapMode = "FlatFace"
sketch19.AttachmentOffset = App.Placement(Vector(0, 0, 74.25), App.Rotation())
add_polygon(sketch19, [(-77, 0), (-77, 8), (-80.525, 8), (-80.5, 7.975), (-80.5, 5.6), (-78.6, 5.6), (-78.6, 0)])
sketch19.addGeometry(Part.LineSegment(Vector(-77, 8, 0), Vector(-77, 0, 0)), True)
sketch19.addConstraint([
    Sketcher.Constraint("Vertical", 0),
    Sketcher.Constraint("Horizontal", 1),
    Sketcher.Constraint("Vertical", 3),
    Sketcher.Constraint("Horizontal", 4),
    Sketcher.Constraint("Vertical", 5),
    Sketcher.Constraint("Horizontal", 6),
    Sketcher.Constraint("Vertical", 7),
    Sketcher.Constraint("Coincident", 7, 1, 0, 2),
    Sketcher.Constraint("PointOnObject", 5, 2, -1),
    Sketcher.Constraint("PointOnObject", 7, 2, -1),
    Sketcher.Constraint("DistanceY", 0, 1, 0, 2, 8.0),
    Sketcher.Constraint("Angle", 2, Q("-45 deg")),
    Sketcher.Constraint("DistanceX", 4, 1, 4, 2, 1.9),
    Sketcher.Constraint("DistanceX", 6, 1, 6, 2, 1.6),
    Sketcher.Constraint("DistanceY", 5, 2, 5, 1, 5.6),
    Sketcher.Constraint("DistanceX", 0, 2, -1, 1, 77.0),
    Sketcher.Constraint("DistanceX", 1, 2, 1, 1, 3.525),
])
groove18 = body.newObject("PartDesign::Groove", "Groove017")
groove18.Profile = sketch19
groove18.ReferenceAxis = (sketch19, ["Axis0"])
groove18.Angle = 360

sketch20 = body.newObject("Sketcher::SketchObject", "Sketch019")
sketch20.AttachmentSupport = (doc.getObject("YZ_Plane"), [""])
sketch20.MapMode = "FlatFace"
sketch20.AttachmentOffset = App.Placement(Vector(0, 0, 107.25), App.Rotation())
add_polygon(sketch20, [(-77, 0), (-77, 8), (-80.525, 8), (-80.5, 7.975), (-80.5, 5.6), (-78.6, 5.6), (-78.6, 0)])
sketch20.addGeometry(Part.LineSegment(Vector(-77, 8, 0), Vector(-77, 0, 0)), True)
sketch20.addConstraint([
    Sketcher.Constraint("Vertical", 0),
    Sketcher.Constraint("Horizontal", 1),
    Sketcher.Constraint("Vertical", 3),
    Sketcher.Constraint("Horizontal", 4),
    Sketcher.Constraint("Vertical", 5),
    Sketcher.Constraint("Horizontal", 6),
    Sketcher.Constraint("Vertical", 7),
    Sketcher.Constraint("Coincident", 7, 1, 0, 2),
    Sketcher.Constraint("PointOnObject", 5, 2, -1),
    Sketcher.Constraint("PointOnObject", 7, 2, -1),
    Sketcher.Constraint("DistanceY", 0, 1, 0, 2, 8.0),
    Sketcher.Constraint("Angle", 2, Q("-45 deg")),
    Sketcher.Constraint("DistanceX", 4, 1, 4, 2, 1.9),
    Sketcher.Constraint("DistanceX", 6, 1, 6, 2, 1.6),
    Sketcher.Constraint("DistanceY", 5, 2, 5, 1, 5.6),
    Sketcher.Constraint("DistanceX", 0, 2, -1, 1, 77.0),
    Sketcher.Constraint("DistanceX", 1, 2, 1, 1, 3.525),
])
groove19 = body.newObject("PartDesign::Groove", "Groove018")
groove19.Profile = sketch20
groove19.ReferenceAxis = (sketch20, ["Axis0"])
groove19.Angle = 360

sketch21 = body.newObject("Sketcher::SketchObject", "Sketch020")
sketch21.AttachmentSupport = (doc.getObject("YZ_Plane"), [""])
sketch21.MapMode = "FlatFace"
sketch21.AttachmentOffset = App.Placement(Vector(0, 0, 140.25), App.Rotation())
add_polygon(sketch21, [(-77, 0), (-77, 8), (-80.525, 8), (-80.5, 7.975), (-80.5, 5.6), (-78.6, 5.6), (-78.6, 0)])
sketch21.addGeometry(Part.LineSegment(Vector(-77, 8, 0), Vector(-77, 0, 0)), True)
sketch21.addConstraint([
    Sketcher.Constraint("Vertical", 0),
    Sketcher.Constraint("Horizontal", 1),
    Sketcher.Constraint("Vertical", 3),
    Sketcher.Constraint("Horizontal", 4),
    Sketcher.Constraint("Vertical", 5),
    Sketcher.Constraint("Horizontal", 6),
    Sketcher.Constraint("Vertical", 7),
    Sketcher.Constraint("Coincident", 7, 1, 0, 2),
    Sketcher.Constraint("PointOnObject", 5, 2, -1),
    Sketcher.Constraint("PointOnObject", 7, 2, -1),
    Sketcher.Constraint("DistanceY", 0, 1, 0, 2, 8.0),
    Sketcher.Constraint("Angle", 2, Q("-45 deg")),
    Sketcher.Constraint("DistanceX", 4, 1, 4, 2, 1.9),
    Sketcher.Constraint("DistanceX", 6, 1, 6, 2, 1.6),
    Sketcher.Constraint("DistanceY", 5, 2, 5, 1, 5.6),
    Sketcher.Constraint("DistanceX", 0, 2, -1, 1, 77.0),
    Sketcher.Constraint("DistanceX", 1, 2, 1, 1, 3.525),
])
groove20 = body.newObject("PartDesign::Groove", "Groove019")
groove20.Profile = sketch21
groove20.ReferenceAxis = (sketch21, ["Axis0"])
groove20.Angle = 360

sketch22 = body.newObject("Sketcher::SketchObject", "Sketch021")
sketch22.AttachmentSupport = (doc.getObject("YZ_Plane"), [""])
sketch22.MapMode = "FlatFace"
sketch22.AttachmentOffset = App.Placement(Vector(0, 0, 173.25), App.Rotation())
add_polygon(sketch22, [(-77, 0), (-77, 8), (-80.525, 8), (-80.5, 7.975), (-80.5, 5.6), (-78.6, 5.6), (-78.6, 0)])
sketch22.addGeometry(Part.LineSegment(Vector(-77, 8, 0), Vector(-77, 0, 0)), True)
sketch22.addConstraint([
    Sketcher.Constraint("Vertical", 0),
    Sketcher.Constraint("Horizontal", 1),
    Sketcher.Constraint("Vertical", 3),
    Sketcher.Constraint("Horizontal", 4),
    Sketcher.Constraint("Vertical", 5),
    Sketcher.Constraint("Horizontal", 6),
    Sketcher.Constraint("Vertical", 7),
    Sketcher.Constraint("Coincident", 7, 1, 0, 2),
    Sketcher.Constraint("PointOnObject", 5, 2, -1),
    Sketcher.Constraint("PointOnObject", 7, 2, -1),
    Sketcher.Constraint("DistanceY", 0, 1, 0, 2, 8.0),
    Sketcher.Constraint("Angle", 2, Q("-45 deg")),
    Sketcher.Constraint("DistanceX", 4, 1, 4, 2, 1.9),
    Sketcher.Constraint("DistanceX", 6, 1, 6, 2, 1.6),
    Sketcher.Constraint("DistanceY", 5, 2, 5, 1, 5.6),
    Sketcher.Constraint("DistanceX", 0, 2, -1, 1, 77.0),
    Sketcher.Constraint("DistanceX", 1, 2, 1, 1, 3.525),
])
groove21 = body.newObject("PartDesign::Groove", "Groove020")
groove21.Profile = sketch22
groove21.ReferenceAxis = (sketch22, ["Axis0"])
groove21.Angle = 360

sketch23 = body.newObject("Sketcher::SketchObject", "Sketch022")
sketch23.AttachmentSupport = (doc.getObject("XZ_Plane"), [""])
sketch23.MapMode = "FlatFace"
sketch23.AttachmentOffset = App.Placement(Vector(0, 0, -90.5), App.Rotation())
add_polygon(sketch23, [(-204.2, 0), (-204.2, 4.5), (-181.8, 4.5), (-181.8, 0)])
add_polygon(sketch23, [(181.8, 0), (181.8, 4.5), (204.2, 4.5), (204.2, 0)])
sketch23.addConstraint([
    Sketcher.Constraint("Vertical", 0),
    Sketcher.Constraint("Horizontal", 1),
    Sketcher.Constraint("Vertical", 2),
    Sketcher.Constraint("Horizontal", 3),
    Sketcher.Constraint("Vertical", 4),
    Sketcher.Constraint("Horizontal", 5),
    Sketcher.Constraint("Vertical", 6),
    Sketcher.Constraint("Horizontal", 7),
    Sketcher.Constraint("Symmetric", 3, 2, 6, 2, -1, 1),
    Sketcher.Constraint("Symmetric", 1, 2, 4, 2, -2),
    Sketcher.Constraint("PointOnObject", 2, 2, -1),
    Sketcher.Constraint("DistanceX", 1, 1, 1, 2, 22.5),
    Sketcher.Constraint("DistanceY", 0, 1, 0, 2, 4.5),
    Sketcher.Constraint("DistanceX", 0, 2, 4, 2, 386.0),
])
pocket1 = body.newObject("PartDesign::Pocket", "Pocket")
pocket1.Profile = sketch23
pocket1.Length = 181
pocket1.Reversed = True

sketch24 = body.newObject("Sketcher::SketchObject", "Sketch023")
sketch24.AttachmentSupport = (doc.getObject("XY_Plane"), [""])
sketch24.MapMode = "FlatFace"
sketch24.AttachmentOffset = App.Placement(Vector(0, 0, 8), App.Rotation())
add_polygon(sketch24, [(-204, 109), (-204, 90), (-182, 90), (-182, 109)])
sketch24.addConstraint([
    Sketcher.Constraint("Vertical", 0),
    Sketcher.Constraint("Horizontal", 1),
    Sketcher.Constraint("Vertical", 2),
    Sketcher.Constraint("Horizontal", 3),
    Sketcher.Constraint("DistanceX", 1, 1, 1, 2, 22.5),
    Sketcher.Constraint("DistanceY", -1, 1, 0, 2, 90.5),
    Sketcher.Constraint("DistanceY", 0, 2, 0, 1, 18.725),
    Sketcher.Constraint("DistanceX", 0, 2, -1, 1, 204.25),
])
pad2 = body.newObject("PartDesign::Pad", "Pad001")
pad2.Profile = sketch24
pad2.Length = 3.5
pad2.Reversed = True
doc.recompute()

mirrored = body.newObject("PartDesign::Mirrored", "Mirrored")
mirrored.Originals = [pad2]
mirrored.MirrorPlane = (doc.getObject("YZ_Plane"), [""])
body.Tip = mirrored

sketch25 = body.newObject("Sketcher::SketchObject", "Sketch024")
sketch25.AttachmentSupport = (doc.getObject("XY_Plane"), [""])
sketch25.MapMode = "FlatFace"
sketch25.AttachmentOffset = App.Placement(Vector(0, 0, 8), App.Rotation())
add_polygon(sketch25, [(-137, 113), (-137, 90), (137, 90), (137, 113)])
sketch25.addConstraint([
    Sketcher.Constraint("Vertical", 0),
    Sketcher.Constraint("Horizontal", 1),
    Sketcher.Constraint("Vertical", 2),
    Sketcher.Constraint("Horizontal", 3),
    Sketcher.Constraint("DistanceX", 1, 1, 1, 2, 274.5),
    Sketcher.Constraint("DistanceY", -1, 1, 0, 2, 90.5),
    Sketcher.Constraint("DistanceY", 0, 2, 0, 1, 22.375),
    Sketcher.Constraint("DistanceX", 0, 2, -1, 1, 137.25),
])
pad3 = body.newObject("PartDesign::Pad", "Pad002")
pad3.Profile = sketch25
pad3.Length = 5
pad3.Reversed = True

sketch26 = body.newObject("Sketcher::SketchObject", "Sketch025")
sketch26.AttachmentSupport = (doc.getObject("XY_Plane"), [""])
sketch26.MapMode = "FlatFace"
sketch26.AttachmentOffset = App.Placement(Vector(0, 0, 8), App.Rotation())
sketch26.addGeometry([
    Part.Circle(Vector(-131.2, 98, 0), Vector(0, 0, 1), 1.7),
    Part.Circle(Vector(131.2, 98, 0), Vector(0, 0, 1), 1.7),
], False)
sketch26.addConstraint([
    Sketcher.Constraint("Equal", 0, 1),
    Sketcher.Constraint("Symmetric", 0, 3, 1, 3, -2),
    Sketcher.Constraint("Diameter", 0, 3.4),
    Sketcher.Constraint("DistanceY", -1, 1, 0, 3, 98.0),
    Sketcher.Constraint("DistanceX", 0, 3, 1, 3, 262.5),
])
doc.recompute()
hole = body.newObject("PartDesign::Hole", "Hole")
hole.Profile = sketch26
hole.ThreadType = "None"
hole.Diameter = 3.4
hole.DepthType = "ThroughAll"
hole.HoleCutType = "Countersink"
hole.HoleCutDiameter = 6.3
hole.HoleCutCountersinkAngle = 90

doc.recompute()
